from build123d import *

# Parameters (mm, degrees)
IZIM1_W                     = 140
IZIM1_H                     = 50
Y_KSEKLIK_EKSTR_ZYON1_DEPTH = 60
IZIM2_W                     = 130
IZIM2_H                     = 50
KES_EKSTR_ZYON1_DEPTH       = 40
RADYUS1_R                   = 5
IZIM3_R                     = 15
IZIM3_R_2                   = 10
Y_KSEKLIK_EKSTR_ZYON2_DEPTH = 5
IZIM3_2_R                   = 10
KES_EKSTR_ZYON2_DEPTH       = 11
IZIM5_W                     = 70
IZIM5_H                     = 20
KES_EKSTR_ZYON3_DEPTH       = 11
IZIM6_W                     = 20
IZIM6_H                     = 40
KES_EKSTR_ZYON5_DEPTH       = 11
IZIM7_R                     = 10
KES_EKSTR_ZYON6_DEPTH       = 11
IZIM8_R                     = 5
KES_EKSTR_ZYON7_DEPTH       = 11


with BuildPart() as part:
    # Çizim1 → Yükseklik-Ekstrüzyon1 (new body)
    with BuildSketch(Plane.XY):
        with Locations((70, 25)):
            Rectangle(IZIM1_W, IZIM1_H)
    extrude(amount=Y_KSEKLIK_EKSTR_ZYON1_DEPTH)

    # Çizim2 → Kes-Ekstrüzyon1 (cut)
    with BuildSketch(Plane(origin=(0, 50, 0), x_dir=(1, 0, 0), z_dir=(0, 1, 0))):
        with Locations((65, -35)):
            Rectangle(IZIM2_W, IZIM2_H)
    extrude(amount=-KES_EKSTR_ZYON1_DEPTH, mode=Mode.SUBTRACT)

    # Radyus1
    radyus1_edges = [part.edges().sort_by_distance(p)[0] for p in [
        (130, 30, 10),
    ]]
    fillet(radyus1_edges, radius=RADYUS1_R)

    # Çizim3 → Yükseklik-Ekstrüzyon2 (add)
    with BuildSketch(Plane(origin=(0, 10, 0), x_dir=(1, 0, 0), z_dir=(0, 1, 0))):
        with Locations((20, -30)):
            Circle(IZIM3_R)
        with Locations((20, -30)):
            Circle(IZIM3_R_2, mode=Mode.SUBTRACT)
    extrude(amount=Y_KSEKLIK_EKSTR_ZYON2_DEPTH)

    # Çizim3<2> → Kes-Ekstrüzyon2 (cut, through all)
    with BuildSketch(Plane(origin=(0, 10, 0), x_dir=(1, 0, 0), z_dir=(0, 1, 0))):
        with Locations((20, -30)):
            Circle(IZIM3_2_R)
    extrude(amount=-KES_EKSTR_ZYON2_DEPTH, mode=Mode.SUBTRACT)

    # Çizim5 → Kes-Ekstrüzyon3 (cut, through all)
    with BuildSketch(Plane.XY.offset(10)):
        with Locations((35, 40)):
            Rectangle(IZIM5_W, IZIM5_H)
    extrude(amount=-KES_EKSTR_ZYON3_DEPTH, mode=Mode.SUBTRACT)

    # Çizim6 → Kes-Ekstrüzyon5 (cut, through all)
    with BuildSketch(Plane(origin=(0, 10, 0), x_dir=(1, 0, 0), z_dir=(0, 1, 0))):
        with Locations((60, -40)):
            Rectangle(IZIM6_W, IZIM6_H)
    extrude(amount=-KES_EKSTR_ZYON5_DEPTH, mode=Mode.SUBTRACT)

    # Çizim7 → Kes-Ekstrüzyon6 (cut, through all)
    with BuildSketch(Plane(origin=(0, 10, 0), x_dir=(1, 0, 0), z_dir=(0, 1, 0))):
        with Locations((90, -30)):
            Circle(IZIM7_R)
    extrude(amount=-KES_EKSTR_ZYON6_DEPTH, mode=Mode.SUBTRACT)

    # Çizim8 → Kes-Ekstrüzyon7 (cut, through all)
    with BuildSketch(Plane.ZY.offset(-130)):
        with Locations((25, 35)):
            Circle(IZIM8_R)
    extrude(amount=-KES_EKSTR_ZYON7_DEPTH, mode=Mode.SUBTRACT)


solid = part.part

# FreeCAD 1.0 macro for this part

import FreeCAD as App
import Part
import Sketcher

V = App.Vector


def edges_at(feature, points):
    """Names of the edges that pass closest to the given points."""
    edges = feature.Shape.Edges
    near = lambda p: min(range(len(edges)), key=lambda i: edges[i].distToShape(Part.Vertex(*p))[0])
    return sorted({f"Edge{near(p) + 1}" for p in points})

doc = App.newDocument("Part")
body = doc.addObject("PartDesign::Body", "Body")

# Sketch on XY plane
sketch1 = body.newObject("Sketcher::SketchObject", "Sketch")
sketch1.AttachmentSupport = (doc.getObject("XY_Plane"), [""])
sketch1.MapMode = "FlatFace"
sketch1.addGeometry([
    Part.LineSegment(V(0, 50, 0), V(0, 0, 0)),
    Part.LineSegment(V(0, 0, 0), V(140, 0, 0)),
    Part.LineSegment(V(140, 0, 0), V(140, 50, 0)),
    Part.LineSegment(V(140, 50, 0), V(0, 50, 0)),
], False)
sketch1.addConstraint([
    Sketcher.Constraint("Coincident", 0, 2, 1, 1),
    Sketcher.Constraint("Coincident", 1, 2, 2, 1),
    Sketcher.Constraint("Coincident", 2, 2, 3, 1),
    Sketcher.Constraint("Coincident", 3, 2, 0, 1),
    Sketcher.Constraint("Vertical", 0),
    Sketcher.Constraint("Horizontal", 1),
    Sketcher.Constraint("Vertical", 2),
    Sketcher.Constraint("Horizontal", 3),
    Sketcher.Constraint("Coincident", 0, 2, -1, 1),
    Sketcher.Constraint("DistanceX", 1, 1, 1, 2, 140.0),
    Sketcher.Constraint("DistanceY", 0, 2, 0, 1, 50.0),
])
pad1 = body.newObject("PartDesign::Pad", "Pad")
pad1.Profile = sketch1
pad1.Length = 60

# Sketch on XZ plane
sketch2 = body.newObject("Sketcher::SketchObject", "Sketch001")
sketch2.AttachmentSupport = (doc.getObject("XZ_Plane"), [""])
sketch2.MapMode = "FlatFace"
sketch2.AttachmentOffset = App.Placement(V(0, 0, -50), App.Rotation())
sketch2.addGeometry([
    Part.LineSegment(V(0, 10, 0), V(0, 60, 0)),
    Part.LineSegment(V(0, 60, 0), V(130, 60, 0)),
    Part.LineSegment(V(130, 60, 0), V(130, 10, 0)),
    Part.LineSegment(V(130, 10, 0), V(0, 10, 0)),
], False)
sketch2.addConstraint([
    Sketcher.Constraint("Coincident", 0, 2, 1, 1),
    Sketcher.Constraint("Coincident", 1, 2, 2, 1),
    Sketcher.Constraint("Coincident", 2, 2, 3, 1),
    Sketcher.Constraint("Coincident", 3, 2, 0, 1),
    Sketcher.Constraint("Vertical", 0),
    Sketcher.Constraint("Horizontal", 1),
    Sketcher.Constraint("Vertical", 2),
    Sketcher.Constraint("Horizontal", 3),
    Sketcher.Constraint("PointOnObject", 0, 2, -2),
    Sketcher.Constraint("DistanceX", 1, 1, 1, 2, 130.0),
    Sketcher.Constraint("DistanceY", 0, 1, 0, 2, 50.0),
    Sketcher.Constraint("DistanceY", -1, 1, 0, 2, 60.0),
])
pocket1 = body.newObject("PartDesign::Pocket", "Pocket")
pocket1.Profile = sketch2
pocket1.Length = 40
pocket1.Reversed = True
doc.recompute()

fillet = body.newObject("PartDesign::Fillet", "Fillet")
fillet.Base = (pocket1, edges_at(pocket1, [(130, 30, 10)]))
fillet.Radius = 5

# Sketch on XZ plane
sketch3 = body.newObject("Sketcher::SketchObject", "Sketch002")
sketch3.AttachmentSupport = (doc.getObject("XZ_Plane"), [""])
sketch3.MapMode = "FlatFace"
sketch3.AttachmentOffset = App.Placement(V(0, 0, -10), App.Rotation())
sketch3.addGeometry([
    Part.Circle(V(20, 30, 0), V(0, 0, 1), 15),
    Part.Circle(V(20, 30, 0), V(0, 0, 1), 10),
], False)
sketch3.addConstraint([
    Sketcher.Constraint("Coincident", 1, 3, 0, 3),
    Sketcher.Constraint("Diameter", 0, 30.0),
    Sketcher.Constraint("Diameter", 1, 20.0),
    Sketcher.Constraint("DistanceX", -1, 1, 0, 3, 20.0),
    Sketcher.Constraint("DistanceY", -1, 1, 0, 3, 30.0),
])
pad2 = body.newObject("PartDesign::Pad", "Pad001")
pad2.Profile = sketch3
pad2.Length = 5
pad2.Reversed = True

# Sketch on XZ plane
sketch4 = body.newObject("Sketcher::SketchObject", "Sketch003")
sketch4.AttachmentSupport = (doc.getObject("XZ_Plane"), [""])
sketch4.MapMode = "FlatFace"
sketch4.AttachmentOffset = App.Placement(V(0, 0, -10), App.Rotation())
sketch4.addGeometry(Part.Circle(V(20, 30, 0), V(0, 0, 1), 10), False)
sketch4.addConstraint([
    Sketcher.Constraint("Diameter", 0, 20.0),
    Sketcher.Constraint("DistanceX", -1, 1, 0, 3, 20.0),
    Sketcher.Constraint("DistanceY", -1, 1, 0, 3, 30.0),
])
pocket2 = body.newObject("PartDesign::Pocket", "Pocket001")
pocket2.Profile = sketch4
pocket2.Type = "ThroughAll"
pocket2.Reversed = True

# Sketch on XY plane
sketch5 = body.newObject("Sketcher::SketchObject", "Sketch004")
sketch5.AttachmentSupport = (doc.getObject("XY_Plane"), [""])
sketch5.MapMode = "FlatFace"
sketch5.AttachmentOffset = App.Placement(V(0, 0, 10), App.Rotation())
sketch5.addGeometry([
    Part.LineSegment(V(0, 50, 0), V(0, 30, 0)),
    Part.LineSegment(V(0, 30, 0), V(70, 30, 0)),
    Part.LineSegment(V(70, 30, 0), V(70, 50, 0)),
    Part.LineSegment(V(70, 50, 0), V(0, 50, 0)),
], False)
sketch5.addConstraint([
    Sketcher.Constraint("Coincident", 0, 2, 1, 1),
    Sketcher.Constraint("Coincident", 1, 2, 2, 1),
    Sketcher.Constraint("Coincident", 2, 2, 3, 1),
    Sketcher.Constraint("Coincident", 3, 2, 0, 1),
    Sketcher.Constraint("Vertical", 0),
    Sketcher.Constraint("Horizontal", 1),
    Sketcher.Constraint("Vertical", 2),
    Sketcher.Constraint("Horizontal", 3),
    Sketcher.Constraint("PointOnObject", 0, 2, -2),
    Sketcher.Constraint("DistanceX", 1, 1, 1, 2, 70.0),
    Sketcher.Constraint("DistanceY", 0, 2, 0, 1, 20.0),
    Sketcher.Constraint("DistanceY", -1, 1, 0, 2, 30.0),
])
pocket3 = body.newObject("PartDesign::Pocket", "Pocket002")
pocket3.Profile = sketch5
pocket3.Type = "ThroughAll"

# Sketch on XZ plane
sketch6 = body.newObject("Sketcher::SketchObject", "Sketch005")
sketch6.AttachmentSupport = (doc.getObject("XZ_Plane"), [""])
sketch6.MapMode = "FlatFace"
sketch6.AttachmentOffset = App.Placement(V(0, 0, -10), App.Rotation())
sketch6.addGeometry([
    Part.LineSegment(V(50, 20, 0), V(50, 60, 0)),
    Part.LineSegment(V(50, 60, 0), V(70, 60, 0)),
    Part.LineSegment(V(70, 60, 0), V(70, 20, 0)),
    Part.LineSegment(V(70, 20, 0), V(50, 20, 0)),
], False)
sketch6.addConstraint([
    Sketcher.Constraint("Coincident", 0, 2, 1, 1),
    Sketcher.Constraint("Coincident", 1, 2, 2, 1),
    Sketcher.Constraint("Coincident", 2, 2, 3, 1),
    Sketcher.Constraint("Coincident", 3, 2, 0, 1),
    Sketcher.Constraint("Vertical", 0),
    Sketcher.Constraint("Horizontal", 1),
    Sketcher.Constraint("Vertical", 2),
    Sketcher.Constraint("Horizontal", 3),
    Sketcher.Constraint("DistanceX", 1, 1, 1, 2, 20.0),
    Sketcher.Constraint("DistanceY", 0, 1, 0, 2, 40.0),
    Sketcher.Constraint("DistanceX", -1, 1, 0, 2, 50.0),
    Sketcher.Constraint("DistanceY", -1, 1, 0, 2, 60.0),
])
pocket4 = body.newObject("PartDesign::Pocket", "Pocket003")
pocket4.Profile = sketch6
pocket4.Type = "ThroughAll"
pocket4.Reversed = True

# Sketch on XZ plane
sketch7 = body.newObject("Sketcher::SketchObject", "Sketch006")
sketch7.AttachmentSupport = (doc.getObject("XZ_Plane"), [""])
sketch7.MapMode = "FlatFace"
sketch7.AttachmentOffset = App.Placement(V(0, 0, -10), App.Rotation())
sketch7.addGeometry(Part.Circle(V(90, 30, 0), V(0, 0, 1), 10), False)
sketch7.addConstraint([
    Sketcher.Constraint("Diameter", 0, 20.0),
    Sketcher.Constraint("DistanceX", -1, 1, 0, 3, 90.0),
    Sketcher.Constraint("DistanceY", -1, 1, 0, 3, 30.0),
])
pocket5 = body.newObject("PartDesign::Pocket", "Pocket004")
pocket5.Profile = sketch7
pocket5.Type = "ThroughAll"
pocket5.Reversed = True

# Sketch on YZ plane
sketch8 = body.newObject("Sketcher::SketchObject", "Sketch007")
sketch8.AttachmentSupport = (doc.getObject("YZ_Plane"), [""])
sketch8.MapMode = "FlatFace"
sketch8.AttachmentOffset = App.Placement(V(0, 0, 130), App.Rotation())
sketch8.addGeometry(Part.Circle(V(35, 25, 0), V(0, 0, 1), 5), False)
sketch8.addConstraint([
    Sketcher.Constraint("Diameter", 0, 10.0),
    Sketcher.Constraint("DistanceX", -1, 1, 0, 3, 35.0),
    Sketcher.Constraint("DistanceY", -1, 1, 0, 3, 25.0),
])
pocket6 = body.newObject("PartDesign::Pocket", "Pocket005")
pocket6.Profile = sketch8
pocket6.Type = "ThroughAll"
pocket6.Reversed = True

doc.recompute()
